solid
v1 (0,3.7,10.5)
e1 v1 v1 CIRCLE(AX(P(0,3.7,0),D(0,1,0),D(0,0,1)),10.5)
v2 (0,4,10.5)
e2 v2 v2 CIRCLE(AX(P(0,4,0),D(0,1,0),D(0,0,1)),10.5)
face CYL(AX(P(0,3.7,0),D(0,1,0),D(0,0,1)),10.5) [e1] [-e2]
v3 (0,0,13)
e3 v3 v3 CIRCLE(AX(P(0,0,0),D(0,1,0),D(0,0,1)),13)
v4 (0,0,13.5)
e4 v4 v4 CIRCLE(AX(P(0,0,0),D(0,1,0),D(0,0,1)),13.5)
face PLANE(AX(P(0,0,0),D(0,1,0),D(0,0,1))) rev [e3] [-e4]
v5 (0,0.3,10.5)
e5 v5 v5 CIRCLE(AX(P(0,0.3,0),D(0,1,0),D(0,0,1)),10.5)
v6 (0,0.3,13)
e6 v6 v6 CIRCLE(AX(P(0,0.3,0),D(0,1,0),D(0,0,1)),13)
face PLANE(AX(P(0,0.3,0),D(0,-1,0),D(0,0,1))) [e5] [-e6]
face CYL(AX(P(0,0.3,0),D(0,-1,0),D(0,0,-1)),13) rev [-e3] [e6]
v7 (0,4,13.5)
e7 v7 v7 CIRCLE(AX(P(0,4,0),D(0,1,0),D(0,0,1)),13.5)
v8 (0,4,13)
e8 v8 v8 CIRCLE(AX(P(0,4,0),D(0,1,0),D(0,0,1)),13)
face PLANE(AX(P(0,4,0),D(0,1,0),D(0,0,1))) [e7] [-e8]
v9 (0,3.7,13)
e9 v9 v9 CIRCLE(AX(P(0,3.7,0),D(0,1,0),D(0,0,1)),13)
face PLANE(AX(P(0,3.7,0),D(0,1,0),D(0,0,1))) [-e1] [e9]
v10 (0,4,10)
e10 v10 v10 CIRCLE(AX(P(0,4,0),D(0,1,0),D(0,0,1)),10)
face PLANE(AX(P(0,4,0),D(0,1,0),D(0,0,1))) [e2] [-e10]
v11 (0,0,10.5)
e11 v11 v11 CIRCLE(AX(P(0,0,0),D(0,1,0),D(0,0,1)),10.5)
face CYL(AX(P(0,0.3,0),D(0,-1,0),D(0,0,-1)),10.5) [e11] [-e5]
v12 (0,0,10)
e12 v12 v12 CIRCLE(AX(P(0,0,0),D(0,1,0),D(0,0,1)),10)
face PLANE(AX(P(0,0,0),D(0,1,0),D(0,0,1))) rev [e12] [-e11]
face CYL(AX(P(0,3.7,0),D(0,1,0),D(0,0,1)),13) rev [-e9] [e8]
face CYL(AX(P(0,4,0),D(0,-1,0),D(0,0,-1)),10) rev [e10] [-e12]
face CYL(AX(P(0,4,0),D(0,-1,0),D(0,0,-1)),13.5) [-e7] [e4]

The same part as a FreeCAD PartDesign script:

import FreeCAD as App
import Part
import Sketcher
Q = App.Units.Quantity

doc = App.newDocument("Part")
params = doc.addObject("Spreadsheet::Sheet", "Params")
for row, (alias, value) in enumerate([
    ("sketch1_diameter", "27 mm"),
    ("sketch1_diameter2", "20 mm"),
    ("pad1_length", "4 mm"),
    ("sketch2_diameter", "26 mm"),
    ("sketch2_diameter2", "21 mm"),
    ("pocket1_length", "0.3 mm"),
], start=1):
    params.set(f"A{row}", alias)
    params.set(f"B{row}", "=" + value)
    params.setAlias(f"B{row}", alias)

body = doc.addObject("PartDesign::Body", "Body")

sketch1 = body.newObject("Sketcher::SketchObject", "Sketch")
sketch1.AttachmentSupport = (doc.getObject("XZ_Plane"), [""])
sketch1.MapMode = "FlatFace"
sketch1.addGeometry([
    Part.Circle(App.Vector(0, 0, 0), App.Vector(0, 0, 1), 14),
    Part.Circle(App.Vector(0, 0, 0), App.Vector(0, 0, 1), 10),
], False)
sketch1.addConstraint([
    Sketcher.Constraint("Coincident", 0, 3, -1, 1),
    Sketcher.Constraint("Coincident", 1, 3, -1, 1),
    Sketcher.Constraint("Diameter", 0, Q("27 mm")),
    Sketcher.Constraint("Diameter", 1, Q("20 mm")),
])
sketch1.setExpression("Constraints[2]", "Params.sketch1_diameter")
sketch1.setExpression("Constraints[3]", "Params.sketch1_diameter2")
pad1 = body.newObject("PartDesign::Pad", "Pad")
pad1.Profile = sketch1
pad1.setExpression("Length", "Params.pad1_length")
pad1.Reversed = True

sketch2 = body.newObject("Sketcher::SketchObject", "Sketch001")
sketch2.AttachmentSupport = (doc.getObject("XZ_Plane"), [""])
sketch2.MapMode = "FlatFace"
sketch2.AttachmentOffset = App.Placement(App.Vector(0, 0, -4), App.Rotation())
sketch2.addGeometry([
    Part.Circle(App.Vector(0, 0, 0), App.Vector(0, 0, 1), 13),
    Part.Circle(App.Vector(0, 0, 0), App.Vector(0, 0, 1), 10),
], False)
sketch2.addConstraint([
    Sketcher.Constraint("Coincident", 0, 3, -1, 1),
    Sketcher.Constraint("Coincident", 1, 3, -1, 1),
    Sketcher.Constraint("Diameter", 0, Q("26 mm")),
    Sketcher.Constraint("Diameter", 1, Q("21 mm")),
])
sketch2.setExpression("Constraints[2]", "Params.sketch2_diameter")
sketch2.setExpression("Constraints[3]", "Params.sketch2_diameter2")
pocket1 = body.newObject("PartDesign::Pocket", "Pocket")
pocket1.Profile = sketch2
pocket1.setExpression("Length", "Params.pocket1_length")
pocket1.Reversed = True
doc.recompute()

datumplane = body.newObject("PartDesign::Plane", "DatumPlane")
datumplane.AttachmentSupport = (doc.getObject("XZ_Plane"), [""])
datumplane.MapMode = "FlatFace"
datumplane.AttachmentOffset = App.Placement(App.Vector(0, 0, -2), App.Rotation())
mirrored = body.newObject("PartDesign::Mirrored", "Mirrored")
mirrored.Originals = [pocket1]
mirrored.MirrorPlane = (datumplane, [""])
body.Tip = mirrored

doc.recompute()
